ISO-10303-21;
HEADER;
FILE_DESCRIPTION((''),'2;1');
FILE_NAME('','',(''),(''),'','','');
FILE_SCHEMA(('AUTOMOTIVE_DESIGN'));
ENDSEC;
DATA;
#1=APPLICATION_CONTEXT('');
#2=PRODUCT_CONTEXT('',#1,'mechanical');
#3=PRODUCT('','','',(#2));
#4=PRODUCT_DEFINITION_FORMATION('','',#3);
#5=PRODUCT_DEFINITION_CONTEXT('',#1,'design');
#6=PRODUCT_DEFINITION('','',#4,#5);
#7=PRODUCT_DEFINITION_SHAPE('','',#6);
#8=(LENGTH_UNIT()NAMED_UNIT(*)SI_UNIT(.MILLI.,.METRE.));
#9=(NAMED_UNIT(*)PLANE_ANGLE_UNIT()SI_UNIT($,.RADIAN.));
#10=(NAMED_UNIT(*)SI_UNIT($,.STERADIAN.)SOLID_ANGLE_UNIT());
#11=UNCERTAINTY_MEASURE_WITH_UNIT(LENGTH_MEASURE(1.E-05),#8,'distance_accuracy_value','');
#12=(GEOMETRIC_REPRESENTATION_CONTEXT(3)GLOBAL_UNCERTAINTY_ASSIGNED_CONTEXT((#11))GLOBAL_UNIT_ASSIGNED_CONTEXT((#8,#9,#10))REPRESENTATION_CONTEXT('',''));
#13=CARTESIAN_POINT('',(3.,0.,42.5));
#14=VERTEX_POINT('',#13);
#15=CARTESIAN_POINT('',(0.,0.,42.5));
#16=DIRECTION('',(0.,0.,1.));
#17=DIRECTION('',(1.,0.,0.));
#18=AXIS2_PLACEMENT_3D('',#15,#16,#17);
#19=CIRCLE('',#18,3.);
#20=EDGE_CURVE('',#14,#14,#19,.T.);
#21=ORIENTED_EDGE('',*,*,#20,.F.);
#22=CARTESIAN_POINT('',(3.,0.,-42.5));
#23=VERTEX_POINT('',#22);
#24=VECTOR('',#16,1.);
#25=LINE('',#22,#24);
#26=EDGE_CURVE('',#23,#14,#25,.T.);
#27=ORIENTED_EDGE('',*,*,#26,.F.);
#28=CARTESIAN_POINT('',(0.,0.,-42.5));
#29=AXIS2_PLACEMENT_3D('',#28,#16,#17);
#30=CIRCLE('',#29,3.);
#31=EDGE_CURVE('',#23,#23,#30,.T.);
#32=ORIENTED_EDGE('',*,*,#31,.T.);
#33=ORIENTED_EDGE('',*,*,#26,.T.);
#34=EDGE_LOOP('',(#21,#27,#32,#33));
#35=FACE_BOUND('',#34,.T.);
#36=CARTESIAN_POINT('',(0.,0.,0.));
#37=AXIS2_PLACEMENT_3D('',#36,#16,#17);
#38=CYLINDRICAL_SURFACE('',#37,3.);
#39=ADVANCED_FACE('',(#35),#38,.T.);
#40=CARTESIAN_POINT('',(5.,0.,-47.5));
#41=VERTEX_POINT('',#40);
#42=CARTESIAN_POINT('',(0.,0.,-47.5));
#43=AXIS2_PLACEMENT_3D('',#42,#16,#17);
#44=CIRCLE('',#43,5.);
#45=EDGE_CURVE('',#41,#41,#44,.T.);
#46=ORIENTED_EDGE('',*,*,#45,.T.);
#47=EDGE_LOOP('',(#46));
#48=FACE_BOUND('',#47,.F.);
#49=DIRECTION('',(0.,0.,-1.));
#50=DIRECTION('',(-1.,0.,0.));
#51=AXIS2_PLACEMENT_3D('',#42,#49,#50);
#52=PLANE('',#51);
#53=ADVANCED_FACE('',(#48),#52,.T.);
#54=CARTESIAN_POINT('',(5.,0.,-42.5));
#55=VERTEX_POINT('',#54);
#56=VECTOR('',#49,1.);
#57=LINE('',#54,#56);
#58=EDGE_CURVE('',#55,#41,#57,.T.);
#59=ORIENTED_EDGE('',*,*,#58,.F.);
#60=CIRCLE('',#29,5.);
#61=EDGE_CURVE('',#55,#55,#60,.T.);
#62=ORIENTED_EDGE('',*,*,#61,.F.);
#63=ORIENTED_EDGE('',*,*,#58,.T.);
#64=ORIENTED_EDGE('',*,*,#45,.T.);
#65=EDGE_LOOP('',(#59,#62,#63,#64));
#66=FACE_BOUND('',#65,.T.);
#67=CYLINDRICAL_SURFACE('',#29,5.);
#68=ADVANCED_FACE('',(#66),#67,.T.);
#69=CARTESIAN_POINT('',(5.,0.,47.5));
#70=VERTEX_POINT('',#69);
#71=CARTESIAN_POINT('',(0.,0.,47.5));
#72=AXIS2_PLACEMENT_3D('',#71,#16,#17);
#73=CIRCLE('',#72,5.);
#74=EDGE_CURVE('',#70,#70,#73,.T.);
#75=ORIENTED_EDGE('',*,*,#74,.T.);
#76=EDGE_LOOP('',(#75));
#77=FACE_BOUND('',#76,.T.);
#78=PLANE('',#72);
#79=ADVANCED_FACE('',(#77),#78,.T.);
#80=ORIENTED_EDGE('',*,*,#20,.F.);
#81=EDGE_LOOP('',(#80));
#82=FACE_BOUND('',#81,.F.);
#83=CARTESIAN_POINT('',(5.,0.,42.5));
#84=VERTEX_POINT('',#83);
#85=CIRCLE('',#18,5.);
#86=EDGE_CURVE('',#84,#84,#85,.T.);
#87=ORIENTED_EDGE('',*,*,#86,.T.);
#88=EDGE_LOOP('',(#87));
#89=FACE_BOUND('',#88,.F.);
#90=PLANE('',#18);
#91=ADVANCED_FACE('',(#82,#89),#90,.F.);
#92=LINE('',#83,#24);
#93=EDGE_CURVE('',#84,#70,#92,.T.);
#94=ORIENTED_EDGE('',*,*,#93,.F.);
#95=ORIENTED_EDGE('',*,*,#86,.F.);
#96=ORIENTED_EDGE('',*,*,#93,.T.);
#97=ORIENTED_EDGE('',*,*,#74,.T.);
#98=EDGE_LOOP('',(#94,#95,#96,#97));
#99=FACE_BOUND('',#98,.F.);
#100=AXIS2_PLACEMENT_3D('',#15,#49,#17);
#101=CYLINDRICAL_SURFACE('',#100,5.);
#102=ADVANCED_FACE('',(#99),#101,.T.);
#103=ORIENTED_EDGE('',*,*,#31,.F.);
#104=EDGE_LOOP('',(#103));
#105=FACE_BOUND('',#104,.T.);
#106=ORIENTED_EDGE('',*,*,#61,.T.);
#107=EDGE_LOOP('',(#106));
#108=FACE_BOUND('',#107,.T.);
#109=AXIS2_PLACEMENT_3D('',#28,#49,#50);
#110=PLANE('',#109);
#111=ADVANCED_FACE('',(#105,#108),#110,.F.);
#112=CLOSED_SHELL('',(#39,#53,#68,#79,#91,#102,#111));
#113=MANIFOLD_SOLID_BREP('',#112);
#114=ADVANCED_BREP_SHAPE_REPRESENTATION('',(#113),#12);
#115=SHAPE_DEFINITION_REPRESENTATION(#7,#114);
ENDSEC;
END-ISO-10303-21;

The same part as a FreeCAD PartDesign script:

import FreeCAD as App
import Part
import Sketcher
from FreeCAD import Vector

doc = App.newDocument("Part")
body = doc.addObject("PartDesign::Body", "Body")

sketch1 = doc.addObject("Sketcher::SketchObject", "Sketch")
body.addObject(sketch1)
sketch1.AttachmentSupport = (doc.XY_Plane, [""])
sketch1.MapMode = "FlatFace"
sketch1.addGeometry(Part.Circle(Vector(0, 0, 0), Vector(0, 0, 1), 3), False)
sketch1.addConstraint([
    Sketcher.Constraint("Coincident", 0, 3, -1, 1),
    Sketcher.Constraint("Diameter", 0, 6.0),
])
pad1 = doc.addObject("PartDesign::Pad", "Pad")
body.addObject(pad1)
pad1.Profile = sketch1
pad1.Length = 85
pad1.Midplane = True

sketch2 = doc.addObject("Sketcher::SketchObject", "Sketch001")
body.addObject(sketch2)
sketch2.AttachmentSupport = (doc.XY_Plane, [""])
sketch2.MapMode = "FlatFace"
sketch2.AttachmentOffset = App.Placement(Vector(0, 0, 42.5), App.Rotation())
sketch2.addGeometry(Part.Circle(Vector(0, 0, 0), Vector(0, 0, 1), 5), False)
sketch2.addConstraint([
    Sketcher.Constraint("Coincident", 0, 3, -1, 1),
    Sketcher.Constraint("Diameter", 0, 10.0),
])
pad2 = doc.addObject("PartDesign::Pad", "Pad001")
body.addObject(pad2)
pad2.Profile = sketch2
pad2.Length = 5
doc.recompute()

mirrored = doc.addObject("PartDesign::Mirrored", "Mirrored")
body.addObject(mirrored)
mirrored.Originals = [pad2]
mirrored.MirrorPlane = (doc.XY_Plane, [""])
body.Tip = mirrored

doc.recompute()
